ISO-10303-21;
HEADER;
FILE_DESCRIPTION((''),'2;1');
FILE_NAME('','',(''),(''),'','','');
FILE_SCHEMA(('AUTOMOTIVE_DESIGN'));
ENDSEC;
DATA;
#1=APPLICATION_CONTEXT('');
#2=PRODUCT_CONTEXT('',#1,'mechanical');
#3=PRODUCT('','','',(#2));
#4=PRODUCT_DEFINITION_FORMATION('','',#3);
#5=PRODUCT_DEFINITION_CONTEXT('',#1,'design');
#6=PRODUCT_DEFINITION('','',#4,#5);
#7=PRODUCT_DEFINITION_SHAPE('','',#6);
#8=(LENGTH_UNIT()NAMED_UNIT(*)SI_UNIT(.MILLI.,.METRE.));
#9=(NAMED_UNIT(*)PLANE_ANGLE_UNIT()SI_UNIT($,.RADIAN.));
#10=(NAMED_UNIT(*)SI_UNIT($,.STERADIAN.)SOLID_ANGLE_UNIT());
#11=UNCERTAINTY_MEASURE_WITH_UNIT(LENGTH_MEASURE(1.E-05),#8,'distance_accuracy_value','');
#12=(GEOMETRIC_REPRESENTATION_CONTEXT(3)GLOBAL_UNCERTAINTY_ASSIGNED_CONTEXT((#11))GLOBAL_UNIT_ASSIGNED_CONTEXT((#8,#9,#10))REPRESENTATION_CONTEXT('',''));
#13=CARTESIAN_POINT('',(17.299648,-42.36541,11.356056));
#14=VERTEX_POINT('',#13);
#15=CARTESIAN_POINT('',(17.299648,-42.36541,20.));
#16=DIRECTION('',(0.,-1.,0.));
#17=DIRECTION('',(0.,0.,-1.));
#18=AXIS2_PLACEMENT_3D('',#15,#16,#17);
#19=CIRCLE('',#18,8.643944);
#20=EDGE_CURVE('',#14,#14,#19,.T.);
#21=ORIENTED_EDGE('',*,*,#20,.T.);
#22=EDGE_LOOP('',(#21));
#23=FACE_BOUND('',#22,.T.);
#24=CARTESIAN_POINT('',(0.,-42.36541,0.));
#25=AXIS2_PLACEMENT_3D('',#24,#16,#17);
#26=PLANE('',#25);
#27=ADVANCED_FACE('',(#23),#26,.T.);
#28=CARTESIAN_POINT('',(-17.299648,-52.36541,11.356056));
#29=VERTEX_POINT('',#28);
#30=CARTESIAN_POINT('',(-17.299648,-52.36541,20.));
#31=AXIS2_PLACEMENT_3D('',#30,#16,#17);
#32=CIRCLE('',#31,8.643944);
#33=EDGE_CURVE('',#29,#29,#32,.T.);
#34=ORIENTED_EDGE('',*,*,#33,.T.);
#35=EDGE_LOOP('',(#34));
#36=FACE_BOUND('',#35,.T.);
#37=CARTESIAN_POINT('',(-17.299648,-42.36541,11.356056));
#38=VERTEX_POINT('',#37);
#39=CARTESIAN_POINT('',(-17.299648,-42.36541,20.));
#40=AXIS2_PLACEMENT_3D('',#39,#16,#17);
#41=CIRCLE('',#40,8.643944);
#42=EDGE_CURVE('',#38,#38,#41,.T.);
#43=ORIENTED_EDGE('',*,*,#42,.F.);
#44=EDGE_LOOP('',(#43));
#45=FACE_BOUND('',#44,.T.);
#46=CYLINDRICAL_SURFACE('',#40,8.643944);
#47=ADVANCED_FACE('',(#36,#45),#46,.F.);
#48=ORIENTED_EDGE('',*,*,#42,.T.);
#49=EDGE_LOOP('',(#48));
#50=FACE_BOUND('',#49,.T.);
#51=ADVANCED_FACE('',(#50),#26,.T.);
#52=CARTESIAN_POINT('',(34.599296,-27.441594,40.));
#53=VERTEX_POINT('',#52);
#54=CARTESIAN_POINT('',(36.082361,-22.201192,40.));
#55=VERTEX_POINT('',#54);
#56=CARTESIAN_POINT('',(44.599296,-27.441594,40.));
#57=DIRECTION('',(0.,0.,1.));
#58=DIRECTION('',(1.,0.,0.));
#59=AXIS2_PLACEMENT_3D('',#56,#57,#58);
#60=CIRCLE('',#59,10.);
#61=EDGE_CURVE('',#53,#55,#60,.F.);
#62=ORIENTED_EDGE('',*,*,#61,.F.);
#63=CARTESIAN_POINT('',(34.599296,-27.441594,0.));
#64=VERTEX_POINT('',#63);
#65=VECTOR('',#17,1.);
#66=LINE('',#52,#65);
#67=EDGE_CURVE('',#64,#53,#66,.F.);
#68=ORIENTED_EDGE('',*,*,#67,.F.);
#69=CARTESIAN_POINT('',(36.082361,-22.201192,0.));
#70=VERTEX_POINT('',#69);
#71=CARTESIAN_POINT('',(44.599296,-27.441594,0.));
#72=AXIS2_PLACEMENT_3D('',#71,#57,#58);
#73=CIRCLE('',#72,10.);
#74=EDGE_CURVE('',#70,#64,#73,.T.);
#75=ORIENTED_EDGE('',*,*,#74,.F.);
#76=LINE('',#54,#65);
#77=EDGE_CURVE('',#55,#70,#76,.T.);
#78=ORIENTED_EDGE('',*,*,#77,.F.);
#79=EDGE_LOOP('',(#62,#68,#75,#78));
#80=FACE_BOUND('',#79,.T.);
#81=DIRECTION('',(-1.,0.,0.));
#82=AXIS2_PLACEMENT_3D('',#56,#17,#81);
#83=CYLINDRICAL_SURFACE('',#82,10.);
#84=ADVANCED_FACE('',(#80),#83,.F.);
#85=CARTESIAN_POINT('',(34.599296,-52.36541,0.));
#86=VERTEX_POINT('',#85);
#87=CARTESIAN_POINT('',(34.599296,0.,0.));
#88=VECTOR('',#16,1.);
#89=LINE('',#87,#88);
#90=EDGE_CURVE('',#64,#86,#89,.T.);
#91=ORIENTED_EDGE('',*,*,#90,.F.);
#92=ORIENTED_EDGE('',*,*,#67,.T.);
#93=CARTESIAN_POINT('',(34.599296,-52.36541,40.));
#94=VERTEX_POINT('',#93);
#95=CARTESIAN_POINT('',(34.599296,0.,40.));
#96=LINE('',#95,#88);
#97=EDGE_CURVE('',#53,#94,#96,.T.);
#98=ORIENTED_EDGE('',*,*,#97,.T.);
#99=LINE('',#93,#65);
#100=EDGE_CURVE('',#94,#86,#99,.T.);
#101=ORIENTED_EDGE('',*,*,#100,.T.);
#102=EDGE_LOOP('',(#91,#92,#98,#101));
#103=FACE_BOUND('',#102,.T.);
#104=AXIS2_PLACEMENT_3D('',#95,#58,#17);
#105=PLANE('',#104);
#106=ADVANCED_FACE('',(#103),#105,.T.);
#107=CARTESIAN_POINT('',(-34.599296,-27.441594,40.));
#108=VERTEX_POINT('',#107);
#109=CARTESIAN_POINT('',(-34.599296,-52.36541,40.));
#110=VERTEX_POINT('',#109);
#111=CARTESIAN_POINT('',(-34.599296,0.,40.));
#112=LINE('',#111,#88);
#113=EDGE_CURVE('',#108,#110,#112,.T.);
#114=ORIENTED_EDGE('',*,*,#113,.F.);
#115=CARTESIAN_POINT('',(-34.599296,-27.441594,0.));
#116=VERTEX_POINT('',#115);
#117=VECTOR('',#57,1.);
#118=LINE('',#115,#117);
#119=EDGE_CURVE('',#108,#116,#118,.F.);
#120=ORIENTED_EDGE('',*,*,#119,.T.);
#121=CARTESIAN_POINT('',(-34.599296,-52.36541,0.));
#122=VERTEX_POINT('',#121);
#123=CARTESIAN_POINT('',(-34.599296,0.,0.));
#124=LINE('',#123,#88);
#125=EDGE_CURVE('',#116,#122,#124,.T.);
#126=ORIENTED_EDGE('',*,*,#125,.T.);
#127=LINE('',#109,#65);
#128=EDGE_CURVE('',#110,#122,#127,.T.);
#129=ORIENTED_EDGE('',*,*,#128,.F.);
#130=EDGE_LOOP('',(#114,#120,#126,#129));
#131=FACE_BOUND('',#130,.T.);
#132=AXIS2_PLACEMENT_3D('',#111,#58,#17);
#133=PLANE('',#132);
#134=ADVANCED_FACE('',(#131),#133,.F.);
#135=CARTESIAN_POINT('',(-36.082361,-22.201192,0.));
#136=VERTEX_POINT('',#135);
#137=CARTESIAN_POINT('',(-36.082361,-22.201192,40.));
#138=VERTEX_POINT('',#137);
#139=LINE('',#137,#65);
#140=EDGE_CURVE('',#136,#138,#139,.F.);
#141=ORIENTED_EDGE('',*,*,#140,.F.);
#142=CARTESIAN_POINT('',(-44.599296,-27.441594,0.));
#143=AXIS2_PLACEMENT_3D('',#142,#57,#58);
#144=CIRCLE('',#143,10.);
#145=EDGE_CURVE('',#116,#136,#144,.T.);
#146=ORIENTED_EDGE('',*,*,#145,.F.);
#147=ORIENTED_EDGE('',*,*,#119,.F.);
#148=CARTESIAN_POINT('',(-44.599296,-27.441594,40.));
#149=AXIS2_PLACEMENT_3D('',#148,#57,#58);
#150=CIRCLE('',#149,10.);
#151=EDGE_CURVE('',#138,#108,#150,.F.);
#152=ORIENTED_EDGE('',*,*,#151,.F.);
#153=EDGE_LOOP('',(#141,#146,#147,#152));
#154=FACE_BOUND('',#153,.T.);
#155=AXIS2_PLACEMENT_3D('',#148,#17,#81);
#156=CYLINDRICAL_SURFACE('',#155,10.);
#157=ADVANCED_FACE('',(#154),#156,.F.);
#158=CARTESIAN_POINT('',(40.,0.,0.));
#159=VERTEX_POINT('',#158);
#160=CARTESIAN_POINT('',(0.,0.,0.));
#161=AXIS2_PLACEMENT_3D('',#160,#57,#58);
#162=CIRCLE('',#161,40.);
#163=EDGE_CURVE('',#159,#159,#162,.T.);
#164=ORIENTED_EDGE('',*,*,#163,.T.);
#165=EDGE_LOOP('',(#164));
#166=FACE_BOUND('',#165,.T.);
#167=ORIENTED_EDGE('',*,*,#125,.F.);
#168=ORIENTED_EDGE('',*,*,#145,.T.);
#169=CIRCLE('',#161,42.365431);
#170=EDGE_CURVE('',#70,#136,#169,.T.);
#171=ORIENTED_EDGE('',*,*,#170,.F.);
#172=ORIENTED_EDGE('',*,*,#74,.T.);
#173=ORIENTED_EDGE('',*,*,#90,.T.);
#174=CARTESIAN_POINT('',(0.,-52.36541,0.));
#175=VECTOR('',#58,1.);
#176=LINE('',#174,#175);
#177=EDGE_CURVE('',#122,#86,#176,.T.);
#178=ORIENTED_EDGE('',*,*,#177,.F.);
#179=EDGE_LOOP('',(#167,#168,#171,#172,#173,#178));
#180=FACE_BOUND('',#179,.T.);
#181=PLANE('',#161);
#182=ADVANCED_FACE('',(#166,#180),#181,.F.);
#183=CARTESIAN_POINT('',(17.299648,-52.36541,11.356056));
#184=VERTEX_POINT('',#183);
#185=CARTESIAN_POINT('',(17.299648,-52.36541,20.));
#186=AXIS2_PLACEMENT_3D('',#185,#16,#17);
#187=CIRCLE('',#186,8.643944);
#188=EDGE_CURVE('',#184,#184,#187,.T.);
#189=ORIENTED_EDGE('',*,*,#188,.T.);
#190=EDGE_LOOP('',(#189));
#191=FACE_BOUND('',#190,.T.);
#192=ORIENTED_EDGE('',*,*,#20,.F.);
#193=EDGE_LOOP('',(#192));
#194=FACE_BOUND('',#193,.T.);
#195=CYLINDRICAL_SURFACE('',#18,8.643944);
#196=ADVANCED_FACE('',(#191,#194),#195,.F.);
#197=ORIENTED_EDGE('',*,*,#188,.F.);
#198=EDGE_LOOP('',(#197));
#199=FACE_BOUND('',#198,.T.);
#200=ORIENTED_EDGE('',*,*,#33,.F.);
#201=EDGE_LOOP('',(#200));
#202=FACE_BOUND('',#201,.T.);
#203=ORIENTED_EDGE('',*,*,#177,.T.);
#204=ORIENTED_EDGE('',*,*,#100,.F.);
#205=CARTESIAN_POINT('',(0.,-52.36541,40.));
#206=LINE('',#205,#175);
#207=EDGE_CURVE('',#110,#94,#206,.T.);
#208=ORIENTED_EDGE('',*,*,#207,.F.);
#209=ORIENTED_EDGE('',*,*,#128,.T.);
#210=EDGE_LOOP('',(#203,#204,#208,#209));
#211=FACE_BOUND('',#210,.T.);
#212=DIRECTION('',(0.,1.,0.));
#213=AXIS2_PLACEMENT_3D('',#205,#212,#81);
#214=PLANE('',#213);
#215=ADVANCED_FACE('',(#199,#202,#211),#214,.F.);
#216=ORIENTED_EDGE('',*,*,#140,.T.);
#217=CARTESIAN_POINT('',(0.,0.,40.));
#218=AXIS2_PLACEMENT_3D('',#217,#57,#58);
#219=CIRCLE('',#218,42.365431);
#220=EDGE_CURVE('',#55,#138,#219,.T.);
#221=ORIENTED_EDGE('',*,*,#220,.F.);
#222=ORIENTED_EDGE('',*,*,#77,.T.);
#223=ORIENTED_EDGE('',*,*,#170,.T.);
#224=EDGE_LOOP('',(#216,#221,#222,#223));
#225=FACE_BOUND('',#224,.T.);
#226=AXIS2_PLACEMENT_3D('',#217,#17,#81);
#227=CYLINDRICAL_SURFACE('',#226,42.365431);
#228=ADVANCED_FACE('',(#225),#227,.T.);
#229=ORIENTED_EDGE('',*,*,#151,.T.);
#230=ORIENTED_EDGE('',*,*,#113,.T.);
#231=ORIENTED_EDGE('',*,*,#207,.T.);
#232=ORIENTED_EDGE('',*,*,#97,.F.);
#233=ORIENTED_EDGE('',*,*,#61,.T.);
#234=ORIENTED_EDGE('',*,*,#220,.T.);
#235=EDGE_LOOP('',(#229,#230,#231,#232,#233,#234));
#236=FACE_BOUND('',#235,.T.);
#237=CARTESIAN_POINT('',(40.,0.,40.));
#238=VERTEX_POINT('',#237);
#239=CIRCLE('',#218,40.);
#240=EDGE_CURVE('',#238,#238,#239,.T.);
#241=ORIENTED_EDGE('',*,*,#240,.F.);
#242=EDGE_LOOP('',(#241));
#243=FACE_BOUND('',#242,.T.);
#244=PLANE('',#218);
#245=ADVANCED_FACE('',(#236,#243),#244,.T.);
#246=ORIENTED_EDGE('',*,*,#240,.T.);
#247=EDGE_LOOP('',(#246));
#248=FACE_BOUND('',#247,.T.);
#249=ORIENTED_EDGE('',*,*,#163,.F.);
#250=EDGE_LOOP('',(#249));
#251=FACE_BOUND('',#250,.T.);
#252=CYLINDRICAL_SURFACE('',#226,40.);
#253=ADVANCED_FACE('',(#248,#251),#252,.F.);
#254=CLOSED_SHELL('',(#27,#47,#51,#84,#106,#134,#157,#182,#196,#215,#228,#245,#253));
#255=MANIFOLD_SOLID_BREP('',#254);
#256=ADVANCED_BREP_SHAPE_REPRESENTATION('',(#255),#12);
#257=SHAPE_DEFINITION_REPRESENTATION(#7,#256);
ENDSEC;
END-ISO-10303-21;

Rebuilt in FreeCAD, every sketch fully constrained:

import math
import FreeCAD as App
import Part
import Sketcher

V = App.Vector
Q = App.Units.Quantity


def edges_at(feature, points):
    """Names of the edges that pass closest to the given points."""
    edges = feature.Shape.Edges
    near = lambda p: min(range(len(edges)), key=lambda i: edges[i].distToShape(Part.Vertex(*p))[0])
    return sorted({f"Edge{near(p) + 1}" for p in points})

doc = App.newDocument("Part")
params = doc.addObject("Spreadsheet::Sheet", "Params")
for row, (alias, value) in enumerate([
    ("sketch1_diameter", "80 mm"),
    ("pad1_length", "40 mm"),
    ("pocket1_length", "10 mm"),
    ("fillet_radius", "10 mm"),
], start=1):
    params.set(f"A{row}", alias)
    params.set(f"B{row}", "=" + value)
    params.setAlias(f"B{row}", alias)

body = doc.addObject("PartDesign::Body", "Body")

sketch1 = body.newObject("Sketcher::SketchObject", "Sketch")
sketch1.AttachmentSupport = (doc.getObject("XY_Plane"), [""])
sketch1.MapMode = "FlatFace"
sketch1.addGeometry(Part.LineSegment(V(-34.599296, -24.44828, 0), V(-34.599296, -52.36541, 0)), False)
sketch1.addGeometry(Part.LineSegment(V(-34.599296, -52.36541, 0), V(34.599296, -52.36541, 0)), False)
sketch1.addGeometry(Part.LineSegment(V(34.599296, -52.36541, 0), V(34.599296, -24.44828, 0)), False)
sketch1.addGeometry(Part.ArcOfCircle(Part.Circle(V(0, 0, 0), V(0, 0, 1), 42.365431), math.radians(-35.245489), math.radians(215.245489)), False)
sketch1.addGeometry(Part.Circle(V(0, 0, 0), V(0, 0, 1), 40), False)
sketch1.addConstraint(Sketcher.Constraint("Coincident", 0, 2, 1, 1))
sketch1.addConstraint(Sketcher.Constraint("Coincident", 1, 2, 2, 1))
sketch1.addConstraint(Sketcher.Constraint("Coincident", 2, 2, 3, 1))
sketch1.addConstraint(Sketcher.Constraint("Coincident", 3, 2, 0, 1))
sketch1.addConstraint(Sketcher.Constraint("Vertical", 0))
sketch1.addConstraint(Sketcher.Constraint("Horizontal", 1))
sketch1.addConstraint(Sketcher.Constraint("Vertical", 2))
sketch1.addConstraint(Sketcher.Constraint("Coincident", 3, 3, -1, 1))
sketch1.addConstraint(Sketcher.Constraint("Coincident", 4, 3, -1, 1))
sketch1.addConstraint(Sketcher.Constraint("Horizontal", 2, 2, 3, 2))
sketch1.addConstraint(Sketcher.Constraint("Diameter", 4, Q("80 mm")))
sketch1.addConstraint(Sketcher.Constraint("Radius", 3, Q("42.365431 mm")))
sketch1.addConstraint(Sketcher.Constraint("DistanceY", 0, 2, 0, 1, Q("27.917129 mm")))
sketch1.addConstraint(Sketcher.Constraint("DistanceX", 1, 1, 1, 2, Q("69.198593 mm")))
sketch1.setExpression("Constraints[10]", "Params.sketch1_diameter")
pad1 = body.newObject("PartDesign::Pad", "Pad")
pad1.Profile = sketch1
pad1.setExpression("Length", "Params.pad1_length")

sketch2 = body.newObject("Sketcher::SketchObject", "Sketch001")
sketch2.AttachmentSupport = (doc.getObject("XZ_Plane"), [""])
sketch2.MapMode = "FlatFace"
sketch2.AttachmentOffset = App.Placement(V(0, 0, 52.36541), App.Rotation())
sketch2.addGeometry(Part.ArcOfCircle(Part.Circle(V(-17.299648, 20, 0), V(0, 0, 1), 8.643944), math.radians(0), math.radians(180)), False)
sketch2.addGeometry(Part.ArcOfCircle(Part.Circle(V(-17.299648, 20, 0), V(0, 0, 1), 8.643944), math.radians(-180), math.radians(0)), False)
sketch2.addGeometry(Part.ArcOfCircle(Part.Circle(V(17.299648, 20, 0), V(0, 0, 1), 8.643944), math.radians(0), math.radians(180)), False)
sketch2.addGeometry(Part.ArcOfCircle(Part.Circle(V(17.299648, 20, 0), V(0, 0, 1), 8.643944), math.radians(-180), math.radians(0)), False)
sketch2.addConstraint(Sketcher.Constraint("Tangent", 0, 1, 1, 2))
sketch2.addConstraint(Sketcher.Constraint("Coincident", 1, 1, 0, 2))
sketch2.addConstraint(Sketcher.Constraint("Tangent", 2, 1, 3, 2))
sketch2.addConstraint(Sketcher.Constraint("Coincident", 3, 1, 2, 2))
sketch2.addConstraint(Sketcher.Constraint("Equal", 1, 2))
sketch2.addConstraint(Sketcher.Constraint("Symmetric", 0, 3, 2, 3, -2))
sketch2.addConstraint(Sketcher.Constraint("Horizontal", 3, 3, 0, 1))
sketch2.addConstraint(Sketcher.Constraint("Horizontal", 0, 1, 1, 1))
sketch2.addConstraint(Sketcher.Constraint("Horizontal", 1, 1, 2, 1))
sketch2.addConstraint(Sketcher.Constraint("Horizontal", 2, 1, 3, 1))
sketch2.addConstraint(Sketcher.Constraint("DistanceY", -1, 1, 0, 3, Q("20 mm")))
sketch2.addConstraint(Sketcher.Constraint("Radius", 0, Q("8.643944 mm")))
sketch2.addConstraint(Sketcher.Constraint("DistanceX", 0, 3, -1, 1, Q("17.299648 mm")))
pocket1 = body.newObject("PartDesign::Pocket", "Pocket")
pocket1.Profile = sketch2
pocket1.setExpression("Length", "Params.pocket1_length")
doc.recompute()

fillet = body.newObject("PartDesign::Fillet", "Fillet")
fillet.Base = (pocket1, edges_at(pocket1, [(-34.599, -24.448, 20), (34.599, -24.448, 20)]))
fillet.setExpression("Radius", "Params.fillet_radius")

doc.recompute()
